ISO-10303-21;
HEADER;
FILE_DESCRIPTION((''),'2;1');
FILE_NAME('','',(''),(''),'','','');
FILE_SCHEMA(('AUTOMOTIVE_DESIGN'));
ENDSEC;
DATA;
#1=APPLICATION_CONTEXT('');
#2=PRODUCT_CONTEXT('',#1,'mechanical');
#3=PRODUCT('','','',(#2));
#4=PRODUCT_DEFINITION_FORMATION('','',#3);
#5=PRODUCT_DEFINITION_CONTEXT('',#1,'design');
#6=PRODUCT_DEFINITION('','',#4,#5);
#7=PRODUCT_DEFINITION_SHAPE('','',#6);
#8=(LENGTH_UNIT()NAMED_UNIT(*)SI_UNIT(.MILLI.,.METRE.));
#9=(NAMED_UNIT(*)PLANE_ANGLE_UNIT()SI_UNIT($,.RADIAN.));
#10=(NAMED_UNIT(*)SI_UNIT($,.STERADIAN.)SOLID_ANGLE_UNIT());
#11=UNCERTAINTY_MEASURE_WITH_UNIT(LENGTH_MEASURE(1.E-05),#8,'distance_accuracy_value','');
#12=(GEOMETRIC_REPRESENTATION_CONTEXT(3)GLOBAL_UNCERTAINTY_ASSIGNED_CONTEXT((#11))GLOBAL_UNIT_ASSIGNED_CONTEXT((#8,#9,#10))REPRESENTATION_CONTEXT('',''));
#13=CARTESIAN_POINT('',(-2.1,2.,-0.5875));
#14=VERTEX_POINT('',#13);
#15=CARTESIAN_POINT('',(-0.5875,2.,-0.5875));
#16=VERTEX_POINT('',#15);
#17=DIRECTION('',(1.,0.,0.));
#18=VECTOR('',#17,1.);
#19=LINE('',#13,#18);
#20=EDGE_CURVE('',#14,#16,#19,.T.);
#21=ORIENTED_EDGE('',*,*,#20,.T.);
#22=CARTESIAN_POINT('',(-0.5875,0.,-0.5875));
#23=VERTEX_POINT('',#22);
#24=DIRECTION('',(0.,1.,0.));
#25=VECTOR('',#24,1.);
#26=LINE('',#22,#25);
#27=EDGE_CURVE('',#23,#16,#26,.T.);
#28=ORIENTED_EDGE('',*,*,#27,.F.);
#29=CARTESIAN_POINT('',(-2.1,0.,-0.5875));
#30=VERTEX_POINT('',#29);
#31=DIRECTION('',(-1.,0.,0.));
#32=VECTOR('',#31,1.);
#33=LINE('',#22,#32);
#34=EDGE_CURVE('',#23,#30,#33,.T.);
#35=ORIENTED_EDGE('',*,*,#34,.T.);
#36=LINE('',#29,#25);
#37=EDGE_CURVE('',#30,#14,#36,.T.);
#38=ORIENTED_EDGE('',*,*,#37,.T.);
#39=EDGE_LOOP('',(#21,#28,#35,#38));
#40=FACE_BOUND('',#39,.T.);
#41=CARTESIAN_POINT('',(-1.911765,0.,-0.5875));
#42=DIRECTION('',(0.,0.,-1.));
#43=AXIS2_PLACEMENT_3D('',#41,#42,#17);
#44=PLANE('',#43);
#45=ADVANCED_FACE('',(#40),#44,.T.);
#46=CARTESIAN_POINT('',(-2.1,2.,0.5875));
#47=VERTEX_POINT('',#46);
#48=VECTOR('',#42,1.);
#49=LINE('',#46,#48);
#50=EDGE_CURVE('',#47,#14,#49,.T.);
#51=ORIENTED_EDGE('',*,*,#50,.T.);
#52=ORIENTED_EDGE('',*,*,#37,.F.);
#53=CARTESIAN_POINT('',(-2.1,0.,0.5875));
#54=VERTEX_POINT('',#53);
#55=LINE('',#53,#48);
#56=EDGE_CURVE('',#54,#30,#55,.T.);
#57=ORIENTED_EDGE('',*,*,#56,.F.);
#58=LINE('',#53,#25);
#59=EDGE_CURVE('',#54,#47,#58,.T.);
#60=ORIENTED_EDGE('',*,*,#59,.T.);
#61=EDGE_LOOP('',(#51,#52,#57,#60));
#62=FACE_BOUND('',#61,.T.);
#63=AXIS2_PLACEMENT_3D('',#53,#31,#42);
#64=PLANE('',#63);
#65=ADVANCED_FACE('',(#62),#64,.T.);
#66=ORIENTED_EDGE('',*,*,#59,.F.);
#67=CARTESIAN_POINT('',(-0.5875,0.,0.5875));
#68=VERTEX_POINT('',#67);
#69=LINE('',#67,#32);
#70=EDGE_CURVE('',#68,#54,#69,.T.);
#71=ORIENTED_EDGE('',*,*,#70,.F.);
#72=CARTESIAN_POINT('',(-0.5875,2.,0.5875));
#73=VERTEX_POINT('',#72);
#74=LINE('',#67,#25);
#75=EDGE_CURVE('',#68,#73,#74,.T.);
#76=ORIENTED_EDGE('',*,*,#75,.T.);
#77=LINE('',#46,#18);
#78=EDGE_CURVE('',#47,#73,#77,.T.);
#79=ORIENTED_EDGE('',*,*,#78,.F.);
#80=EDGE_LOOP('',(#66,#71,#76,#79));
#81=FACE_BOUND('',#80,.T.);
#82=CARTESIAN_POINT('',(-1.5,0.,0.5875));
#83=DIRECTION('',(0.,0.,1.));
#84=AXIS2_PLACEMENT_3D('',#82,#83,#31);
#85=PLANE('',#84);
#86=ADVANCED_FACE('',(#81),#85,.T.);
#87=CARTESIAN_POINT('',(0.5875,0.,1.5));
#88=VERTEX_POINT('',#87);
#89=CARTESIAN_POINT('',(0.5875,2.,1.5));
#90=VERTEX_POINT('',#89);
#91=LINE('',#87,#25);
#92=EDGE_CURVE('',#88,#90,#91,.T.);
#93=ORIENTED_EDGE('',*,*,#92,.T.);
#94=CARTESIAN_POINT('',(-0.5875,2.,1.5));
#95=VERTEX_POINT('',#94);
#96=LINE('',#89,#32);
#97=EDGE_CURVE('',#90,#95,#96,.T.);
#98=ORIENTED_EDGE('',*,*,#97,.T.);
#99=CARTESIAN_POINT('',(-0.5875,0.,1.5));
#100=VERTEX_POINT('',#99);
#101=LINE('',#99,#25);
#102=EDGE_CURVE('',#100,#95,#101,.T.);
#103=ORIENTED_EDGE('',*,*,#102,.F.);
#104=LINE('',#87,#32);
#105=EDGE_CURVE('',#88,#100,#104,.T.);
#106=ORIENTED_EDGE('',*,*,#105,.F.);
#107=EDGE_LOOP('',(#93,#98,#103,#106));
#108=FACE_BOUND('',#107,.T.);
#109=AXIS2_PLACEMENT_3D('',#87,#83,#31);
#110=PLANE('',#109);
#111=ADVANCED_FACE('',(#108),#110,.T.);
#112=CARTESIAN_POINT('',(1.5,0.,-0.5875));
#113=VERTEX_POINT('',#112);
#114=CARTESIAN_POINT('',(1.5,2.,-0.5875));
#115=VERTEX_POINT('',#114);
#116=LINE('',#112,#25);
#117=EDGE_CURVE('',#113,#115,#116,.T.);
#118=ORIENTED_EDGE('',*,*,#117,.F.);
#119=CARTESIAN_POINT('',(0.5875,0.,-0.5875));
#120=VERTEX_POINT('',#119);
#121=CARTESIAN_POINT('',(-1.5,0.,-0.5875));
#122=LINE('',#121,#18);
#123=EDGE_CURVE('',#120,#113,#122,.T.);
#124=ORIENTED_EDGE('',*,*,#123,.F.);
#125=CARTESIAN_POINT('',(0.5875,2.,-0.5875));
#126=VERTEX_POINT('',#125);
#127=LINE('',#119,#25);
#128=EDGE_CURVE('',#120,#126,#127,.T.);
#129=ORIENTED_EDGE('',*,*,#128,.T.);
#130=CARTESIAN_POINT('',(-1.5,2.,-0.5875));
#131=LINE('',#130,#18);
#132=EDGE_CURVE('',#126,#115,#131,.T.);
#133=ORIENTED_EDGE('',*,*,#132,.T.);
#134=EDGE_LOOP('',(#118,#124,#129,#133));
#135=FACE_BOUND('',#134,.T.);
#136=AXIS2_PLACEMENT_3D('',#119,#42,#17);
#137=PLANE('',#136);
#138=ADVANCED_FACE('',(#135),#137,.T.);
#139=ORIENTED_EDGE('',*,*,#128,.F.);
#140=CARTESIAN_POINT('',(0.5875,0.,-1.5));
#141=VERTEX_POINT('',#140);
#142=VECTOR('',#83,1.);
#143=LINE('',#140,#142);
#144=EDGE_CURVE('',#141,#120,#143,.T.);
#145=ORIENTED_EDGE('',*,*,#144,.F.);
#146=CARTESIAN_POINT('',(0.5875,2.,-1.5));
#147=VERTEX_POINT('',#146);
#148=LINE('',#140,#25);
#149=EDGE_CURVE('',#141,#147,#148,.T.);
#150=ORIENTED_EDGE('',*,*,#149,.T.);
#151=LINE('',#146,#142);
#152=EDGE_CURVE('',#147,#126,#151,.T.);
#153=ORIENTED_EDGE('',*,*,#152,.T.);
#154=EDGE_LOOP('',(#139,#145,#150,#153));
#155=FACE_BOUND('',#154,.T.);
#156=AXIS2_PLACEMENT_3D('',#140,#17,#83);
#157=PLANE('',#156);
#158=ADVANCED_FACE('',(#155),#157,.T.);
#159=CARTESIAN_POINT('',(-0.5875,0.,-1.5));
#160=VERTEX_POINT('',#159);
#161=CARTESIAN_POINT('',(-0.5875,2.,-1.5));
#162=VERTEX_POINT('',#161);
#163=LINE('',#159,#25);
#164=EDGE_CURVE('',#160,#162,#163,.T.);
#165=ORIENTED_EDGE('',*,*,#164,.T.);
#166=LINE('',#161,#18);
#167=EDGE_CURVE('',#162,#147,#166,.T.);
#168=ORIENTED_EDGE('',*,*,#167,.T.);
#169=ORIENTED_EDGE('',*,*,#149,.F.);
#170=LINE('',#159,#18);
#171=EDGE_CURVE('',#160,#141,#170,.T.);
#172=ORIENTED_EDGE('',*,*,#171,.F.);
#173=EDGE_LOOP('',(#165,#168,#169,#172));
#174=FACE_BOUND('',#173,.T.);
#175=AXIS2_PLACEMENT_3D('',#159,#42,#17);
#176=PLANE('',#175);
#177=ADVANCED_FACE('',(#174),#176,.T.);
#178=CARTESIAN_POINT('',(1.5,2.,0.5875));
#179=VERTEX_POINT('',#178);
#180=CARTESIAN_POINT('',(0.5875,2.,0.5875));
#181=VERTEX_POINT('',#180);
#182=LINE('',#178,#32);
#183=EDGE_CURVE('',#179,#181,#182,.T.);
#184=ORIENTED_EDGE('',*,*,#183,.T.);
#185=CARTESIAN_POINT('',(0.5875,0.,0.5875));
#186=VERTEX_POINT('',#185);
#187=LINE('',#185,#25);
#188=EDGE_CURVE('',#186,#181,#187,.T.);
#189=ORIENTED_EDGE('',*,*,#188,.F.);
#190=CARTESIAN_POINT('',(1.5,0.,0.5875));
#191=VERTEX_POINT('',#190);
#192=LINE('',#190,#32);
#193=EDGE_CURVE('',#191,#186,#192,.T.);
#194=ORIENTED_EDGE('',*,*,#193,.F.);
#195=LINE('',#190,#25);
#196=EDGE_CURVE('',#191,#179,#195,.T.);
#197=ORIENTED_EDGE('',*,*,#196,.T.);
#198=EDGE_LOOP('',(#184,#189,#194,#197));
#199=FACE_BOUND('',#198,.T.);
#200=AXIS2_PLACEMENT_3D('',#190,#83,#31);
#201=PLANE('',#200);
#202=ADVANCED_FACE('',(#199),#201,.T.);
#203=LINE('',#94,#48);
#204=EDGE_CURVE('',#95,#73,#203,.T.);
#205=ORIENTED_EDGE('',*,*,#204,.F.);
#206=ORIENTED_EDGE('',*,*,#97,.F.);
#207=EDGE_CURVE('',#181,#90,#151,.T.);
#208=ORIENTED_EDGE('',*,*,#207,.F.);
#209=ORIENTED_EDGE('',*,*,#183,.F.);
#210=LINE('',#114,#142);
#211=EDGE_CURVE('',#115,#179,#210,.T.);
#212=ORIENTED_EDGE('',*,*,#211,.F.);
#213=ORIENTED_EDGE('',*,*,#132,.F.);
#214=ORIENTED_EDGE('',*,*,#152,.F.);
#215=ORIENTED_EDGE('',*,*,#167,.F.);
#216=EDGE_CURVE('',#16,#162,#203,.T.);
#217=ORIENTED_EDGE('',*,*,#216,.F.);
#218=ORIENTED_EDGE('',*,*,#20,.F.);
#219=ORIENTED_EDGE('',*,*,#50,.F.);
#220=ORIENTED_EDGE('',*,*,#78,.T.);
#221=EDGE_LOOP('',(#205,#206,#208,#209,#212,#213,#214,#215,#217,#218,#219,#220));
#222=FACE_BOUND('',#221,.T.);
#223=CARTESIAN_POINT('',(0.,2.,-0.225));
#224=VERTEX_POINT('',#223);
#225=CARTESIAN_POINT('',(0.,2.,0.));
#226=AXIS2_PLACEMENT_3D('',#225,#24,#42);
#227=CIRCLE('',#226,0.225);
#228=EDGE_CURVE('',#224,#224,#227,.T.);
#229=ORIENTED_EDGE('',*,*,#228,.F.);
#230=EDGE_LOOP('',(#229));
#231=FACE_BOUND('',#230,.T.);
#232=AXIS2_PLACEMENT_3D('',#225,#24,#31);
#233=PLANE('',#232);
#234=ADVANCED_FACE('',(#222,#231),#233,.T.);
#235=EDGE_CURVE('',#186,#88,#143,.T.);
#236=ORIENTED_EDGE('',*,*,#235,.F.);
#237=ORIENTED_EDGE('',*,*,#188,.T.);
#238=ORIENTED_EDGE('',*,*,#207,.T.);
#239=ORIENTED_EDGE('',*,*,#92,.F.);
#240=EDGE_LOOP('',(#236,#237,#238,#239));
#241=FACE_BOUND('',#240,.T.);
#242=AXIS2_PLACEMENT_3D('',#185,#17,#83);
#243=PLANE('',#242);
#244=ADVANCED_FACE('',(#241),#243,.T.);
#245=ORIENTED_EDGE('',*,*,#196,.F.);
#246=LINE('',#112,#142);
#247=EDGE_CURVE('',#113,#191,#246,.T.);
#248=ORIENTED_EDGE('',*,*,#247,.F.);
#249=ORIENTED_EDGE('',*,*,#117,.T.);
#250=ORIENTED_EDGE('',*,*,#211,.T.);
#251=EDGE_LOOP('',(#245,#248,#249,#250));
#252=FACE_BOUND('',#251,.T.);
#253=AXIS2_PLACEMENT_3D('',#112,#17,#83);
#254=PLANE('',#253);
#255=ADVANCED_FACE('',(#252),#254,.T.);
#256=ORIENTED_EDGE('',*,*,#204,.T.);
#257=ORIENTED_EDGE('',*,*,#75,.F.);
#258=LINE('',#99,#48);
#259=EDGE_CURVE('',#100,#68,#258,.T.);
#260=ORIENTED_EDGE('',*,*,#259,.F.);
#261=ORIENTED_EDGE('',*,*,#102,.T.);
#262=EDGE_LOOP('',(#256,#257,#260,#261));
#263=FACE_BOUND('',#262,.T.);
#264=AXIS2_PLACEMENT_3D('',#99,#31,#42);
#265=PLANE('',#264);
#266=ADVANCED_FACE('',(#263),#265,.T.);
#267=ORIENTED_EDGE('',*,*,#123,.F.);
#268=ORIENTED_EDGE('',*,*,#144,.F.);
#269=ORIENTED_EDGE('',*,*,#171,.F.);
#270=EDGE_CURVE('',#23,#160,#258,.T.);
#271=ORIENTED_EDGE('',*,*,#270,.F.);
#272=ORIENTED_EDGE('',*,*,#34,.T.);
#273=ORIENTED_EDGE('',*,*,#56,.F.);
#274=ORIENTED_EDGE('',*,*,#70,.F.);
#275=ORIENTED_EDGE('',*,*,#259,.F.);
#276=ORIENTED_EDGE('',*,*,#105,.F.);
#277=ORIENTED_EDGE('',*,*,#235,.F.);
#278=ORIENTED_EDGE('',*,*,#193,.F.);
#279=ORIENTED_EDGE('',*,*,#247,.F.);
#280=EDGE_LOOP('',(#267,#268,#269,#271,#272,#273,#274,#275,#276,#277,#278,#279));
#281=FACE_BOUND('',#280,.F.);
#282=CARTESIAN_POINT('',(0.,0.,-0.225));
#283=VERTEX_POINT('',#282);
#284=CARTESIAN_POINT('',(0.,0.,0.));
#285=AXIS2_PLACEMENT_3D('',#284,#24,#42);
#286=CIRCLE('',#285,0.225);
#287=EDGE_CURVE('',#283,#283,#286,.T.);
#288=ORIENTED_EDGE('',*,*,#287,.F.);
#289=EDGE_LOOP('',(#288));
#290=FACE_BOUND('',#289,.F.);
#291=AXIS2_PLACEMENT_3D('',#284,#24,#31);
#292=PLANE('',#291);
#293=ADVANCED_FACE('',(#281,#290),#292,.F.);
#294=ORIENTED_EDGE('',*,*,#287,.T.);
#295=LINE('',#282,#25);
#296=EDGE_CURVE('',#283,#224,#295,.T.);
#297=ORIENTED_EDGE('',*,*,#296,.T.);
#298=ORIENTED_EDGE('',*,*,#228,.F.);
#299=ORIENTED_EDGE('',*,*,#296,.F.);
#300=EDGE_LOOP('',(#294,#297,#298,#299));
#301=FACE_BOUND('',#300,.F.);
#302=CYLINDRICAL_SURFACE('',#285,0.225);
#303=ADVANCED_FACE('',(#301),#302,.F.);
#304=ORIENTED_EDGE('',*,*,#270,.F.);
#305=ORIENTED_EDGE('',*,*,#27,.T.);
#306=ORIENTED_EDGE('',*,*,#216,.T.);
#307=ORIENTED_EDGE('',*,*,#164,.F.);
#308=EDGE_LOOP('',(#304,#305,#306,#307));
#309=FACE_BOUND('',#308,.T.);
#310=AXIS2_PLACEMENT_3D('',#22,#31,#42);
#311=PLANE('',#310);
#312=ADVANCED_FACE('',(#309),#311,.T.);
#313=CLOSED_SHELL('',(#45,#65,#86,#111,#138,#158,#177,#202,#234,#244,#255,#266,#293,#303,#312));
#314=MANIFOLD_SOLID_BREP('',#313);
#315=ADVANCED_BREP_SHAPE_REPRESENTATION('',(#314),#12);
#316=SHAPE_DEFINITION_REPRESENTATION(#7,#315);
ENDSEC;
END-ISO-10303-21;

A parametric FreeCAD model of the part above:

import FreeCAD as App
import Part
import Sketcher

doc = App.newDocument("Part")
body = doc.addObject("PartDesign::Body", "Body")

# Sketch on XZ plane
sketch1 = body.newObject("Sketcher::SketchObject", "Sketch")
sketch1.AttachmentSupport = (doc.getObject("XZ_Plane"), [""])
sketch1.MapMode = "FlatFace"
sketch1.addGeometry(Part.LineSegment(App.Vector(-2.1, -0.5875, 0), App.Vector(-2.1, 0.5875, 0)), False)
sketch1.addGeometry(Part.LineSegment(App.Vector(-2.1, 0.5875, 0), App.Vector(-0.5875, 0.5875, 0)), False)
sketch1.addGeometry(Part.LineSegment(App.Vector(-0.5875, 0.5875, 0), App.Vector(-0.5875, 1.5, 0)), False)
sketch1.addGeometry(Part.LineSegment(App.Vector(-0.5875, 1.5, 0), App.Vector(0.5875, 1.5, 0)), False)
sketch1.addGeometry(Part.LineSegment(App.Vector(0.5875, 1.5, 0), App.Vector(0.5875, 0.5875, 0)), False)
sketch1.addGeometry(Part.LineSegment(App.Vector(0.5875, 0.5875, 0), App.Vector(1.5, 0.5875, 0)), False)
sketch1.addGeometry(Part.LineSegment(App.Vector(1.5, 0.5875, 0), App.Vector(1.5, -0.5875, 0)), False)
sketch1.addGeometry(Part.LineSegment(App.Vector(1.5, -0.5875, 0), App.Vector(0.5875, -0.5875, 0)), False)
sketch1.addGeometry(Part.LineSegment(App.Vector(0.5875, -0.5875, 0), App.Vector(0.5875, -1.5, 0)), False)
sketch1.addGeometry(Part.LineSegment(App.Vector(0.5875, -1.5, 0), App.Vector(-0.5875, -1.5, 0)), False)
sketch1.addGeometry(Part.LineSegment(App.Vector(-0.5875, -1.5, 0), App.Vector(-0.5875, -0.5875, 0)), False)
sketch1.addGeometry(Part.LineSegment(App.Vector(-0.5875, -0.5875, 0), App.Vector(-2.1, -0.5875, 0)), False)
sketch1.addConstraint(Sketcher.Constraint("Coincident", 0, 2, 1, 1))
sketch1.addConstraint(Sketcher.Constraint("Coincident", 1, 2, 2, 1))
sketch1.addConstraint(Sketcher.Constraint("Coincident", 2, 2, 3, 1))
sketch1.addConstraint(Sketcher.Constraint("Coincident", 3, 2, 4, 1))
sketch1.addConstraint(Sketcher.Constraint("Coincident", 4, 2, 5, 1))
sketch1.addConstraint(Sketcher.Constraint("Coincident", 5, 2, 6, 1))
sketch1.addConstraint(Sketcher.Constraint("Coincident", 6, 2, 7, 1))
sketch1.addConstraint(Sketcher.Constraint("Coincident", 7, 2, 8, 1))
sketch1.addConstraint(Sketcher.Constraint("Coincident", 8, 2, 9, 1))
sketch1.addConstraint(Sketcher.Constraint("Coincident", 9, 2, 10, 1))
sketch1.addConstraint(Sketcher.Constraint("Coincident", 10, 2, 11, 1))
sketch1.addConstraint(Sketcher.Constraint("Coincident", 11, 2, 0, 1))
sketch1.addConstraint(Sketcher.Constraint("Vertical", 0))
sketch1.addConstraint(Sketcher.Constraint("Horizontal", 1))
sketch1.addConstraint(Sketcher.Constraint("Vertical", 2))
sketch1.addConstraint(Sketcher.Constraint("Horizontal", 3))
sketch1.addConstraint(Sketcher.Constraint("Vertical", 4))
sketch1.addConstraint(Sketcher.Constraint("Horizontal", 5))
sketch1.addConstraint(Sketcher.Constraint("Vertical", 6))
sketch1.addConstraint(Sketcher.Constraint("Horizontal", 7))
sketch1.addConstraint(Sketcher.Constraint("Vertical", 8))
sketch1.addConstraint(Sketcher.Constraint("Horizontal", 9))
sketch1.addConstraint(Sketcher.Constraint("Vertical", 10))
sketch1.addConstraint(Sketcher.Constraint("Horizontal", 11))
sketch1.addConstraint(Sketcher.Constraint("Symmetric", 1, 2, 7, 2, -1, 1))
sketch1.addConstraint(Sketcher.Constraint("Symmetric", 3, 2, 9, 2, -1, 1))
sketch1.addConstraint(Sketcher.Constraint("Symmetric", 1, 2, 4, 2, -2))
sketch1.addConstraint(Sketcher.Constraint("Horizontal", 7, 2, 10, 2))
sketch1.addConstraint(Sketcher.Constraint("Equal", 9, 0))
sketch1.addConstraint(Sketcher.Constraint("Equal", 7, 2))
sketch1.addConstraint(Sketcher.Constraint("DistanceX", 0, 2, -1, 1, 2.1))
sketch1.addConstraint(Sketcher.Constraint("DistanceX", 3, 1, 3, 2, 1.175))
sketch1.addConstraint(Sketcher.Constraint("DistanceY", -1, 1, 2, 2, 1.5))
pad1 = body.newObject("PartDesign::Pad", "Pad")
pad1.Profile = sketch1
pad1.Length = 2
pad1.Reversed = True

# Sketch on XZ plane
sketch2 = body.newObject("Sketcher::SketchObject", "Sketch001")
sketch2.AttachmentSupport = (doc.getObject("XZ_Plane"), [""])
sketch2.MapMode = "FlatFace"
sketch2.addGeometry(Part.Circle(App.Vector(0, 0, 0), App.Vector(0, 0, 1), 0.225), False)
sketch2.addConstraint(Sketcher.Constraint("Coincident", 0, 3, -1, 1))
sketch2.addConstraint(Sketcher.Constraint("Diameter", 0, 0.45))
doc.recompute()
hole = body.newObject("PartDesign::Hole", "Hole")
hole.Profile = sketch2
hole.ThreadType = "None"
hole.Diameter = 0.45
hole.DepthType = "ThroughAll"

doc.recompute()
